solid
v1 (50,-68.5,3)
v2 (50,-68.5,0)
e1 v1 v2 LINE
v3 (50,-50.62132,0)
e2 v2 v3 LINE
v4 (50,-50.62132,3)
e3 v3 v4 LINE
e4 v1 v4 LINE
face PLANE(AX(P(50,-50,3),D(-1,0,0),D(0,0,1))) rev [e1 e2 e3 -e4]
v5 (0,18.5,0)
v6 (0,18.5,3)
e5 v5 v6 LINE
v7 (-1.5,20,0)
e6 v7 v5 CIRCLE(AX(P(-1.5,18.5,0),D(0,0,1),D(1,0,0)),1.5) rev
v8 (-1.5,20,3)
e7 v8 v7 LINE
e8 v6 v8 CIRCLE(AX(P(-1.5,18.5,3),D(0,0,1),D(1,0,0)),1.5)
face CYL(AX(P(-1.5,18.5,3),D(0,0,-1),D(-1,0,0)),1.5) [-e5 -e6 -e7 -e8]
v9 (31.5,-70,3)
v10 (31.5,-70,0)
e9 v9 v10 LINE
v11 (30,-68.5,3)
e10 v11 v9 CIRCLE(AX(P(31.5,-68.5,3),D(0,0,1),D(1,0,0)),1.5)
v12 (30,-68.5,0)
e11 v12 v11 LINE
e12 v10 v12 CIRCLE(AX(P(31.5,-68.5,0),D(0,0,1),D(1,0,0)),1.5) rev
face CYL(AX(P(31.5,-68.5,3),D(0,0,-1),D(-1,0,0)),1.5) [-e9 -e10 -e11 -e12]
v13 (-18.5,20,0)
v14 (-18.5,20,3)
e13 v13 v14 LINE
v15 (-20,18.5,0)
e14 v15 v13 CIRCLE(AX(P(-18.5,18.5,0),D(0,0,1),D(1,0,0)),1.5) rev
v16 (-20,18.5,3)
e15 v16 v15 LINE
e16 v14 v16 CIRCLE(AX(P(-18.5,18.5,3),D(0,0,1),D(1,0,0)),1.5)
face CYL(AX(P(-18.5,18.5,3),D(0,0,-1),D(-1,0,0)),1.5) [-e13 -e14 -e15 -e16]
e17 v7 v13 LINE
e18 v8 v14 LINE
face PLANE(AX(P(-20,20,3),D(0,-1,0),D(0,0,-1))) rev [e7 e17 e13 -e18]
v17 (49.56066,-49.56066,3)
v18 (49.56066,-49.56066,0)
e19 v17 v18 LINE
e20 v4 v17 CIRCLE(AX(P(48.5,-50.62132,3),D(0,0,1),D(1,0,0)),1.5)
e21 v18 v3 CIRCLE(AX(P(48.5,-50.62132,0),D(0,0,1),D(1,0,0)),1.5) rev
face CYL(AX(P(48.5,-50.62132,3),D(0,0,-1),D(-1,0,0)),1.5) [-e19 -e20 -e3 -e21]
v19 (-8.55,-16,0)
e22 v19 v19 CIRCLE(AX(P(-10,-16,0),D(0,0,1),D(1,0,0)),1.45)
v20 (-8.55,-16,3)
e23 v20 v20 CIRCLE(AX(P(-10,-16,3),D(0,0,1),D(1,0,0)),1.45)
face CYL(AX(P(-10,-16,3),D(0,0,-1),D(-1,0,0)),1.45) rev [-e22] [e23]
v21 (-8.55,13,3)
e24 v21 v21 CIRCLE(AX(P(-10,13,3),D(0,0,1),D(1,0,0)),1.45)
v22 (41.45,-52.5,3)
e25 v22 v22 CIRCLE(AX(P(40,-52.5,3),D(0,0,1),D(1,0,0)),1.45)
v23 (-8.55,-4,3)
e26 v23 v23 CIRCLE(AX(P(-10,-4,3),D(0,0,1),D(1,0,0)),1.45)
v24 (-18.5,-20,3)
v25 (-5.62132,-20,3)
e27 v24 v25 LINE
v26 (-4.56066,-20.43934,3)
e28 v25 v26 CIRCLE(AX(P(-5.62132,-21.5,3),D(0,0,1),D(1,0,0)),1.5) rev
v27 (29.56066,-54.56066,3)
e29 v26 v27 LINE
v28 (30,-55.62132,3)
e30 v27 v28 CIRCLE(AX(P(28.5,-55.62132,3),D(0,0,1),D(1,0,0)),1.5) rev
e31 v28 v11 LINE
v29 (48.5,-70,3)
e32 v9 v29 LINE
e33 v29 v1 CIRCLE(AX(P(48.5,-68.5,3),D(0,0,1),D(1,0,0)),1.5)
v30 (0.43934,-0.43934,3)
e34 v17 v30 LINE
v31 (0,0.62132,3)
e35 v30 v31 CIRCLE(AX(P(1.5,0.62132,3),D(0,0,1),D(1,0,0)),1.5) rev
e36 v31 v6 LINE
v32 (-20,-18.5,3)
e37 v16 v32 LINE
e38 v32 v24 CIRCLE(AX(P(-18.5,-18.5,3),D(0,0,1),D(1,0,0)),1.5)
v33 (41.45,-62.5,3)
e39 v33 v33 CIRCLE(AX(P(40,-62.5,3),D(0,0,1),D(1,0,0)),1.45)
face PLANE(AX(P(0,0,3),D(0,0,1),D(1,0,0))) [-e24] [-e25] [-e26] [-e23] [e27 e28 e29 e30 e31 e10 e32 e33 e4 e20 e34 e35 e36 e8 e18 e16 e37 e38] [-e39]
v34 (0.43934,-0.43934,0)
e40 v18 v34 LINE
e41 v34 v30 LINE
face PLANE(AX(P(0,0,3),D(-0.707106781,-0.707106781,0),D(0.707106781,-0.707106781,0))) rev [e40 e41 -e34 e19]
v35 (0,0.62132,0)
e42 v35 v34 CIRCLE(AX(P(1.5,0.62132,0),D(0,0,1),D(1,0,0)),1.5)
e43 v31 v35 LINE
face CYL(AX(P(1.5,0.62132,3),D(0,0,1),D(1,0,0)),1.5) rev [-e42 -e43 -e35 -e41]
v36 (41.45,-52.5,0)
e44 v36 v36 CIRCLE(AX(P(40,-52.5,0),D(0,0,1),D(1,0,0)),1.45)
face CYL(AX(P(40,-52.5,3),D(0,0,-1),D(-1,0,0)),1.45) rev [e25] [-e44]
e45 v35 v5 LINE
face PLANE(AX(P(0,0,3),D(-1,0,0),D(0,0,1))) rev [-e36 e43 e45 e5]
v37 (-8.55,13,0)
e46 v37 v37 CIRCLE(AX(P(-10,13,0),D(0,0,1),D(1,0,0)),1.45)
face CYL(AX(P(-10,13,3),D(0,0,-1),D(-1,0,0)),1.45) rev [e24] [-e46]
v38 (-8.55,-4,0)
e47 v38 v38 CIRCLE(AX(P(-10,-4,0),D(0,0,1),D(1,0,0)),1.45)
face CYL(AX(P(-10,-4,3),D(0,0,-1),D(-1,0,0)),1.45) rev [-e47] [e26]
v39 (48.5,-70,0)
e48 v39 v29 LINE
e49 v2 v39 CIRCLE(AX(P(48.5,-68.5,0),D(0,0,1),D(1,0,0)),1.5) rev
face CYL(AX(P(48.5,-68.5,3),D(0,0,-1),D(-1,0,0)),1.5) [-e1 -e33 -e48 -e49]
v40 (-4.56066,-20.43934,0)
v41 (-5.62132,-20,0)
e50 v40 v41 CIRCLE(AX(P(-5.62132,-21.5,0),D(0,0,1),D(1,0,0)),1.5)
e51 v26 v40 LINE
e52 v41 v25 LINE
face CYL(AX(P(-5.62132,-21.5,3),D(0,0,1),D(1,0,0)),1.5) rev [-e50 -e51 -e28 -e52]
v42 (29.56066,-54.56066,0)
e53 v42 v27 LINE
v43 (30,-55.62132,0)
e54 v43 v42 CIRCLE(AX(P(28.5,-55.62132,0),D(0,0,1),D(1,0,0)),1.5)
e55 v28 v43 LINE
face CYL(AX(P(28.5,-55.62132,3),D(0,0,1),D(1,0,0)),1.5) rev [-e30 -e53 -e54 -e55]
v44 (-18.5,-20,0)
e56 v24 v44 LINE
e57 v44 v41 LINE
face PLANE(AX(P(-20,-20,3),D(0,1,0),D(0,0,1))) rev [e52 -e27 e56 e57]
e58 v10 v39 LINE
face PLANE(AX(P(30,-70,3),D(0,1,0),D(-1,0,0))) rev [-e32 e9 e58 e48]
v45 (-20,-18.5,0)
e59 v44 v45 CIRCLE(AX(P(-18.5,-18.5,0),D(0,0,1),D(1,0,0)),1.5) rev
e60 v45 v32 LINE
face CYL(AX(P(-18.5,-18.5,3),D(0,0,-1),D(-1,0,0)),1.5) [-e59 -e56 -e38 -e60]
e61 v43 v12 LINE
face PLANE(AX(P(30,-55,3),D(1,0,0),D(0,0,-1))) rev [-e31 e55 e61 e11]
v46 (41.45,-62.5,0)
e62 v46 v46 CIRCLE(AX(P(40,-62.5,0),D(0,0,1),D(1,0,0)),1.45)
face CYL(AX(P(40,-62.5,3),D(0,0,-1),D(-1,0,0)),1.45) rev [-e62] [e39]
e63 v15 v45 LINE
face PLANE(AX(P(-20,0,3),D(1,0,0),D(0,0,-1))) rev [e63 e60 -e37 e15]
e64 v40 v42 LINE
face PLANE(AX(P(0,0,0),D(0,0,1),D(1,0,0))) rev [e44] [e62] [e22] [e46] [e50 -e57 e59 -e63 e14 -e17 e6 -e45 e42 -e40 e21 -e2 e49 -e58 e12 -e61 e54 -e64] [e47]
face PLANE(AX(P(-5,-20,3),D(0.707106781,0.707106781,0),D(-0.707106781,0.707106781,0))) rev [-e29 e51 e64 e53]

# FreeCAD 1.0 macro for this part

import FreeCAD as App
import Part
import Sketcher

V = App.Vector
Q = App.Units.Quantity


def edges_at(feature, points):
    """Names of the edges that pass closest to the given points."""
    edges = feature.Shape.Edges
    near = lambda p: min(range(len(edges)), key=lambda i: edges[i].distToShape(Part.Vertex(*p))[0])
    return sorted({f"Edge{near(p) + 1}" for p in points})


def add_polygon(sketch, points):
    """Adds a closed chain of lines whose ends are joined by coincident constraints."""
    first, n = sketch.GeometryCount, len(points)
    for a, b in zip(points, points[1:] + points[:1]):
        sketch.addGeometry(Part.LineSegment(App.Vector(*a, 0), App.Vector(*b, 0)), False)
    for i in range(n):
        sketch.addConstraint(Sketcher.Constraint("Coincident", first + i, 2, first + (i + 1) % n, 1))

doc = App.newDocument("Part")
body = doc.addObject("PartDesign::Body", "Body")

# Sketch on XY plane
sketch1 = body.newObject("Sketcher::SketchObject", "Sketch")
sketch1.AttachmentSupport = (doc.getObject("XY_Plane"), [""])
sketch1.MapMode = "FlatFace"
add_polygon(sketch1, [(-20, -20), (-5, -20), (30, -55), (30, -70), (50, -70), (50, -50), (0, 0), (0, 20), (-20, 20)])  # lines 0-8
sketch1.addGeometry(Part.Circle(V(40, -62.5, 0), V(0, 0, 1), 1.4), False)  # 9
sketch1.addGeometry(Part.Circle(V(40, -52.5, 0), V(0, 0, 1), 1.4), False)  # 10
sketch1.addGeometry(Part.Circle(V(-10, -16, 0), V(0, 0, 1), 1.4), False)  # 11
sketch1.addGeometry(Part.Circle(V(-10, -4, 0), V(0, 0, 1), 1.4), False)  # 12
sketch1.addGeometry(Part.Circle(V(-10, 13, 0), V(0, 0, 1), 1.4), False)  # 13
sketch1.addConstraint([
    Sketcher.Constraint("Horizontal", 0),
    Sketcher.Constraint("Vertical", 2),
    Sketcher.Constraint("Horizontal", 3),
    Sketcher.Constraint("Vertical", 4),
    Sketcher.Constraint("Vertical", 6),
    Sketcher.Constraint("Horizontal", 7),
    Sketcher.Constraint("Vertical", 8),
    Sketcher.Constraint("Coincident", 5, 2, -1, 1),
    Sketcher.Constraint("Equal", 9, 10),
    Sketcher.Constraint("Equal", 10, 11),
    Sketcher.Constraint("Equal", 11, 12),
    Sketcher.Constraint("Equal", 12, 13),
    Sketcher.Constraint("Parallel", 1, 5),
    Sketcher.Constraint("Vertical", 9, 3, 10, 3),
    Sketcher.Constraint("Vertical", 11, 3, 12, 3),
    Sketcher.Constraint("Vertical", 12, 3, 13, 3),
    Sketcher.Constraint("Equal", 3, 7),
    Sketcher.Constraint("Equal", 0, 2),
    Sketcher.Constraint("Equal", 7, 4),
    Sketcher.Constraint("Equal", 4, 6),
    Sketcher.Constraint("Diameter", 9, Q("2.9 mm")),
    Sketcher.Constraint("DistanceX", 0, 1, 0, 2, Q("15 mm")),
    Sketcher.Constraint("DistanceX", 3, 1, 3, 2, Q("20 mm")),
    Sketcher.Constraint("DistanceY", 8, 2, 8, 1, Q("40 mm")),
    Sketcher.Constraint("DistanceX", -1, 1, 9, 3, Q("40 mm")),
    Sketcher.Constraint("DistanceX", 11, 3, -1, 1, Q("10 mm")),
    Sketcher.Constraint("DistanceY", 11, 3, -1, 1, Q("16 mm")),
    Sketcher.Constraint("DistanceY", 12, 3, -1, 1, Q("4 mm")),
    Sketcher.Constraint("DistanceY", -1, 1, 13, 3, Q("13 mm")),
    Sketcher.Constraint("DistanceX", -1, 1, 1, 2, Q("30 mm")),
    Sketcher.Constraint("DistanceY", 9, 3, 10, 3, Q("10 mm")),
    Sketcher.Constraint("DistanceY", 9, 3, -1, 1, Q("62.5 mm")),
])
pad1 = body.newObject("PartDesign::Pad", "Pad")
pad1.Profile = sketch1
pad1.Length = 3
doc.recompute()

fillet = body.newObject("PartDesign::Fillet", "Fillet")
fillet.Base = (pad1, edges_at(pad1, [
    (-20, 20, 1.5),
    (0, 20, 1.5),
    (0, 0, 1.5),
    (50, -50, 1.5),
    (50, -70, 1.5),
    (30, -70, 1.5),
    (30, -55, 1.5),
    (-5, -20, 1.5),
    (-20, -20, 1.5),
]))
fillet.Radius = 1.5

doc.recompute()
